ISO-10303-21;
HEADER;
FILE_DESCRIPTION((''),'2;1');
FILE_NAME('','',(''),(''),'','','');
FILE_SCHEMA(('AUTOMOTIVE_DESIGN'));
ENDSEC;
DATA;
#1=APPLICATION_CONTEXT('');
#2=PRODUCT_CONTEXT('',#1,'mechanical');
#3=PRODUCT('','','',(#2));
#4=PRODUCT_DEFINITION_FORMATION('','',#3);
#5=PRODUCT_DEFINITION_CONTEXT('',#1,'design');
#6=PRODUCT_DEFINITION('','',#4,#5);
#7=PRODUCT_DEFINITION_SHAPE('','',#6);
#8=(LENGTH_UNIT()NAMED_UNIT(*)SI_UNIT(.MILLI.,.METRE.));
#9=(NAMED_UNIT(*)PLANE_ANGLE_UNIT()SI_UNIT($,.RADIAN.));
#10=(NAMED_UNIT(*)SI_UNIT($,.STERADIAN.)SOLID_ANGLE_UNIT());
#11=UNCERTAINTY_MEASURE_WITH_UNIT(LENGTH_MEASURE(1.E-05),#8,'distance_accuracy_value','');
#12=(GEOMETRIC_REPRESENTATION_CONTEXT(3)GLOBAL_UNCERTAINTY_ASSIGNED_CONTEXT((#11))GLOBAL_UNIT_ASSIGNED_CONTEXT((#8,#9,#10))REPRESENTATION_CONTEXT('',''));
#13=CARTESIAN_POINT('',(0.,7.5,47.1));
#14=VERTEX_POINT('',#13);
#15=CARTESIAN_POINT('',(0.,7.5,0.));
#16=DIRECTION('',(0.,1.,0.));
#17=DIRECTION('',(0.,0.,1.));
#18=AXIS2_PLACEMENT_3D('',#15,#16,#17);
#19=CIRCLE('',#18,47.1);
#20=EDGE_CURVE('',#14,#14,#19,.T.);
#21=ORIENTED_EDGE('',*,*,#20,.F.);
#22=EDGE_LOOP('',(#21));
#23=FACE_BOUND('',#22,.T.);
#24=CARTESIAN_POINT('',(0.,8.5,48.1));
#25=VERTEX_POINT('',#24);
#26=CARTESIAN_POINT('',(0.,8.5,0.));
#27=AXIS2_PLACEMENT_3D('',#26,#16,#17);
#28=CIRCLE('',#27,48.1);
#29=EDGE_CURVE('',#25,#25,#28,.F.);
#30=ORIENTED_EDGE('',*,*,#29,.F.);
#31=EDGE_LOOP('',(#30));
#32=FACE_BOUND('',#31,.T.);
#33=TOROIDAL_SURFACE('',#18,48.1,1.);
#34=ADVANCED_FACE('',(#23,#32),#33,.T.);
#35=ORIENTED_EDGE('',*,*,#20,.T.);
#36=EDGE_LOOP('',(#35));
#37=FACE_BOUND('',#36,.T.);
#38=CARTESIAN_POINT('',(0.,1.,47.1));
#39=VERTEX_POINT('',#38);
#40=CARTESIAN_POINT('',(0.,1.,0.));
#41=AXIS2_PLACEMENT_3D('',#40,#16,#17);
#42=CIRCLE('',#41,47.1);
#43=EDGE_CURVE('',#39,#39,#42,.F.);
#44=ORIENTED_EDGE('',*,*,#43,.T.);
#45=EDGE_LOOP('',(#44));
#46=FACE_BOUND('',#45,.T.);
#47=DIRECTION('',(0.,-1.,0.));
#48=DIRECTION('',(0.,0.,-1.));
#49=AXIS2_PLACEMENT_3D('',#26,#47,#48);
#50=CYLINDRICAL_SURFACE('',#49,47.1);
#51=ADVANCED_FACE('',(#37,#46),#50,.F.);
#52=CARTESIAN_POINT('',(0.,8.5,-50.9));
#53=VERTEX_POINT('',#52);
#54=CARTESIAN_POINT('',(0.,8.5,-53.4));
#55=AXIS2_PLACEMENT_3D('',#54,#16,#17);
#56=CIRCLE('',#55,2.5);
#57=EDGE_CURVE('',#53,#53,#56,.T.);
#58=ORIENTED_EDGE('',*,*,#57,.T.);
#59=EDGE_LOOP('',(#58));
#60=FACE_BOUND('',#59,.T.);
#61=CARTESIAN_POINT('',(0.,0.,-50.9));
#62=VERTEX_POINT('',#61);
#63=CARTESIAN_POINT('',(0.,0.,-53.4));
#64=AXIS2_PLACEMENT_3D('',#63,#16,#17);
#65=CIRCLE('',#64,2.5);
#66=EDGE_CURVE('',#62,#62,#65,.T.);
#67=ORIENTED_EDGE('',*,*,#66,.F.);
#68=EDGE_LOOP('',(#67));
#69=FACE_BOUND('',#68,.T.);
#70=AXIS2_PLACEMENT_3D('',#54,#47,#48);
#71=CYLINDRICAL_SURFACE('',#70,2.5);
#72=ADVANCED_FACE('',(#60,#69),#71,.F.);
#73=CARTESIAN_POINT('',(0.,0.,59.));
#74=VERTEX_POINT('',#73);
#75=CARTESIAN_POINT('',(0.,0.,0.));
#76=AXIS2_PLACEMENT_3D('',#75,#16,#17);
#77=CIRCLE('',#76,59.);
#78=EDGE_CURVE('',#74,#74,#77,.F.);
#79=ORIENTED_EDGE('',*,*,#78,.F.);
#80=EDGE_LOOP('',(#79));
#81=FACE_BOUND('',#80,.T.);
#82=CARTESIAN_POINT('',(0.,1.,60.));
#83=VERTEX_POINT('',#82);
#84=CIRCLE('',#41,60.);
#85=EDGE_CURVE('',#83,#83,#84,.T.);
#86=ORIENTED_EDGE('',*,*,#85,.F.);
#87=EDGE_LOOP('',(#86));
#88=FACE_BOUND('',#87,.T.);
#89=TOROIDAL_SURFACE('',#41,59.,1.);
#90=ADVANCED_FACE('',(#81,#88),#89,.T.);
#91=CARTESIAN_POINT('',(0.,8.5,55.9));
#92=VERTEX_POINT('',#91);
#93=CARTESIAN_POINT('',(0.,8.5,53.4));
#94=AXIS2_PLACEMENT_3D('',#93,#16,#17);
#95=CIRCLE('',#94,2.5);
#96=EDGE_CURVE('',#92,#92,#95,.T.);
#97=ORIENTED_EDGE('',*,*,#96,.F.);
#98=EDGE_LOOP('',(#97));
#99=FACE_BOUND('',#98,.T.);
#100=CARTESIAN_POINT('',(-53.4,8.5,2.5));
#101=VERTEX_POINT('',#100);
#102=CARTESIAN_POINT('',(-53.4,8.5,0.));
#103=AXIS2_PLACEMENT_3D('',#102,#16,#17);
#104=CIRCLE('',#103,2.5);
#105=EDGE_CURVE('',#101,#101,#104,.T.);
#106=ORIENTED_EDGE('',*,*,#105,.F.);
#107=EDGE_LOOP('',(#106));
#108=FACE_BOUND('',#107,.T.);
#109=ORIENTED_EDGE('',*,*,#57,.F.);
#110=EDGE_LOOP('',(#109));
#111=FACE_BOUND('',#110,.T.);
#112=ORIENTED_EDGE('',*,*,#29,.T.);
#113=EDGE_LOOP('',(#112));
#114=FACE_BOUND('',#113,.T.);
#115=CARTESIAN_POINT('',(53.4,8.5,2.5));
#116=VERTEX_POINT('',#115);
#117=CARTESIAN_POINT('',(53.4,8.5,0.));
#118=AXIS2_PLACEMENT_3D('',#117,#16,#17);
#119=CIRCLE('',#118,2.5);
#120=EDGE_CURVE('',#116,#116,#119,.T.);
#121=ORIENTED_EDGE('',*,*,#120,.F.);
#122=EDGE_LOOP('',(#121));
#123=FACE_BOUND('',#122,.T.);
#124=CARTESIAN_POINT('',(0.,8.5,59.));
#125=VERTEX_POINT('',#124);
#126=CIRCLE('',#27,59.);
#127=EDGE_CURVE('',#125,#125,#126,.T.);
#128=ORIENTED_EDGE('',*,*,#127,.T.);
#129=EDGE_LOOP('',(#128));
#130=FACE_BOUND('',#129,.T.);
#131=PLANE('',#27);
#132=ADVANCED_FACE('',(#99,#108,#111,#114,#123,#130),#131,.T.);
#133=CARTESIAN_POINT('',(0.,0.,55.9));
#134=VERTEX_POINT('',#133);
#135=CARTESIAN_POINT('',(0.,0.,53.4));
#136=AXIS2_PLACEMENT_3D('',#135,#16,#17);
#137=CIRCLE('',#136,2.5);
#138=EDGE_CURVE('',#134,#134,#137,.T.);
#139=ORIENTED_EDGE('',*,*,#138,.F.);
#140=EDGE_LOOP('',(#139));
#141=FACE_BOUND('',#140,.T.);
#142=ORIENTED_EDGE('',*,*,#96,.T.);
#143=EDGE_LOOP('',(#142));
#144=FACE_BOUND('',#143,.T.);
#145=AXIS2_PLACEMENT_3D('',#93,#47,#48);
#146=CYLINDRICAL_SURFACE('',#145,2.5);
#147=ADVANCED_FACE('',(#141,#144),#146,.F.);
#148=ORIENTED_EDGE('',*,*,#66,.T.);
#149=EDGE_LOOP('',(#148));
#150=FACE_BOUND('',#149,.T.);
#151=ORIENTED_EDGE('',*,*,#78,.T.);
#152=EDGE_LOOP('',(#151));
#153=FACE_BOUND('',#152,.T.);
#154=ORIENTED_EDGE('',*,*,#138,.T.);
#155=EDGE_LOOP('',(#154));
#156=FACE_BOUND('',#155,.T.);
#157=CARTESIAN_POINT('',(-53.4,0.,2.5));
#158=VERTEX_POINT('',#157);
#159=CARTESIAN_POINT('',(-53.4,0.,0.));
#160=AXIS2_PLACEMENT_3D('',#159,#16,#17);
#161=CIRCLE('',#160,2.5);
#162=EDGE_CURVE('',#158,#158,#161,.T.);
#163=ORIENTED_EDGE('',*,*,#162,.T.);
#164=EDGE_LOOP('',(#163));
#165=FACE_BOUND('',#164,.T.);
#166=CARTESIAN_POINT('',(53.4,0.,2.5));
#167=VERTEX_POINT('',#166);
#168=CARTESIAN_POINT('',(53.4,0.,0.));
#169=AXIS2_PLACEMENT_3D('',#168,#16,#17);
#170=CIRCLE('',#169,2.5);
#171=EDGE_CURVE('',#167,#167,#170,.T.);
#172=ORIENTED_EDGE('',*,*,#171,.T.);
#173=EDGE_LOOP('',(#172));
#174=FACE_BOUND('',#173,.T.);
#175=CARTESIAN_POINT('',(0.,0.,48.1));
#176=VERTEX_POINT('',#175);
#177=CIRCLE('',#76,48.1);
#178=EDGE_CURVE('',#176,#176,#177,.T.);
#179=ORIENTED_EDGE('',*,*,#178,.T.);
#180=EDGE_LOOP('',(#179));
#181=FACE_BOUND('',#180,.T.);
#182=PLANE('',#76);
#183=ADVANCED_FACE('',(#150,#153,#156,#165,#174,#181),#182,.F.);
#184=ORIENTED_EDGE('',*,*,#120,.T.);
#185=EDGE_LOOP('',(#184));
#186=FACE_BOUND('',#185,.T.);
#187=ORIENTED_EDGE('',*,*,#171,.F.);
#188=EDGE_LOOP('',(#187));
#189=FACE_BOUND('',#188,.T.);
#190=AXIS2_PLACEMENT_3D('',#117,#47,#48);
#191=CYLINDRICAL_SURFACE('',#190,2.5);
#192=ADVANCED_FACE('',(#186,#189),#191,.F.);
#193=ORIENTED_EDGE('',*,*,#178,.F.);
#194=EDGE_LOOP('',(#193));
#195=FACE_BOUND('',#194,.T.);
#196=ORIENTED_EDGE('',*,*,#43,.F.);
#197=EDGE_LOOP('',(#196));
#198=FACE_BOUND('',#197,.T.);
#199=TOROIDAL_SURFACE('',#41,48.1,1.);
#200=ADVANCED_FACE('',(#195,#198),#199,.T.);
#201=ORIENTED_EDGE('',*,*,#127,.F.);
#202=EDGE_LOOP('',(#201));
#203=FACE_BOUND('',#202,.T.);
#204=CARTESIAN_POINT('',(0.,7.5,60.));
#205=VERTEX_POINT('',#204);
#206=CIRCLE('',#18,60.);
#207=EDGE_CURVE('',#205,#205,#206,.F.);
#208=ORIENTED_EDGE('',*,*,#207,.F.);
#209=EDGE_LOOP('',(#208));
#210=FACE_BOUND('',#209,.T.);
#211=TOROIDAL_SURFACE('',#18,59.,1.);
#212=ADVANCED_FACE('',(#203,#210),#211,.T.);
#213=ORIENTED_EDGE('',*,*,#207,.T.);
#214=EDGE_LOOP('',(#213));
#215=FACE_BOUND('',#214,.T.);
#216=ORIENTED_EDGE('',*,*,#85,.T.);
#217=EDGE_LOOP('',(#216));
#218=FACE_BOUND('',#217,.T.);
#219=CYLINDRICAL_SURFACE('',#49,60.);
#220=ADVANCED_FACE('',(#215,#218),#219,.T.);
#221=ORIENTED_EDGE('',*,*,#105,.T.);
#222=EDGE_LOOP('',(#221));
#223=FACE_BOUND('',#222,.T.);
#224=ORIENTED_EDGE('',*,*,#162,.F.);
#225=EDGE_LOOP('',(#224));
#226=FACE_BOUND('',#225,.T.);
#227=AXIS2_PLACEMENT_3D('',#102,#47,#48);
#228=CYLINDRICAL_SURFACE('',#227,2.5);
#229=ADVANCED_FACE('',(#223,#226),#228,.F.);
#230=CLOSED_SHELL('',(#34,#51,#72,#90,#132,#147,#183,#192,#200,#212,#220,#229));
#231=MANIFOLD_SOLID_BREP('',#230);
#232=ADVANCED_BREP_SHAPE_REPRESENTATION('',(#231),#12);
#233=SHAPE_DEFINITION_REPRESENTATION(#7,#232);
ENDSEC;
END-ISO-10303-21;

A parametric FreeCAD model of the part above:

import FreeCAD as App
import Part
import Sketcher
Q = App.Units.Quantity


def edges_at(feature, points):
    """Names of the edges that pass closest to the given points."""
    edges = feature.Shape.Edges
    near = lambda p: min(range(len(edges)), key=lambda i: edges[i].distToShape(Part.Vertex(*p))[0])
    return sorted({f"Edge{near(p) + 1}" for p in points})

doc = App.newDocument("Part")
body = doc.addObject("PartDesign::Body", "Body")

sketch1 = doc.addObject("Sketcher::SketchObject", "Sketch")
body.addObject(sketch1)
sketch1.AttachmentSupport = (doc.XZ_Plane, [""])
sketch1.MapMode = "FlatFace"
sketch1.addGeometry([
    Part.Circle(App.Vector(0, 0, 0), App.Vector(0, 0, 1), 60),
    Part.Circle(App.Vector(0, -53.4, 0), App.Vector(0, 0, 1), 2.5),
    Part.Circle(App.Vector(0, 0, 0), App.Vector(0, 0, 1), 47.1),
    Part.Circle(App.Vector(-53.4, 0, 0), App.Vector(0, 0, 1), 2.5),
    Part.Circle(App.Vector(53.4, 0, 0), App.Vector(0, 0, 1), 2.5),
    Part.Circle(App.Vector(0, 53.4, 0), App.Vector(0, 0, 1), 2.5),
], False)
sketch1.addConstraint([
    Sketcher.Constraint("Coincident", 0, 3, -1, 1),
    Sketcher.Constraint("Coincident", 2, 3, -1, 1),
    Sketcher.Constraint("Equal", 1, 3),
    Sketcher.Constraint("Equal", 3, 4),
    Sketcher.Constraint("Equal", 4, 5),
    Sketcher.Constraint("Symmetric", 3, 3, 4, 3, -1, 1),
    Sketcher.Constraint("Symmetric", 1, 3, 5, 3, -1, 1),
    Sketcher.Constraint("PointOnObject", 1, 3, -2),
    Sketcher.Constraint("PointOnObject", 3, 3, -1),
    Sketcher.Constraint("Diameter", 0, Q("120 mm")),
    Sketcher.Constraint("Diameter", 1, Q("5 mm")),
    Sketcher.Constraint("Diameter", 2, Q("94.2 mm")),
    Sketcher.Constraint("DistanceY", 1, 3, -1, 1, Q("53.4 mm")),
    Sketcher.Constraint("DistanceX", 3, 3, -1, 1, Q("53.4 mm")),
])
pad1 = doc.addObject("PartDesign::Pad", "Pad")
body.addObject(pad1)
pad1.Profile = sketch1
pad1.Length = 8.5
pad1.Reversed = True
doc.recompute()

fillet = doc.addObject("PartDesign::Fillet", "Fillet")
body.addObject(fillet)
fillet.Base = (pad1, edges_at(pad1, [
    (0, 0, -60),
    (0, 8.5, -60),
    (0, 0, -47.1),
    (0, 8.5, -47.1),
]))
fillet.Radius = 1

doc.recompute()
